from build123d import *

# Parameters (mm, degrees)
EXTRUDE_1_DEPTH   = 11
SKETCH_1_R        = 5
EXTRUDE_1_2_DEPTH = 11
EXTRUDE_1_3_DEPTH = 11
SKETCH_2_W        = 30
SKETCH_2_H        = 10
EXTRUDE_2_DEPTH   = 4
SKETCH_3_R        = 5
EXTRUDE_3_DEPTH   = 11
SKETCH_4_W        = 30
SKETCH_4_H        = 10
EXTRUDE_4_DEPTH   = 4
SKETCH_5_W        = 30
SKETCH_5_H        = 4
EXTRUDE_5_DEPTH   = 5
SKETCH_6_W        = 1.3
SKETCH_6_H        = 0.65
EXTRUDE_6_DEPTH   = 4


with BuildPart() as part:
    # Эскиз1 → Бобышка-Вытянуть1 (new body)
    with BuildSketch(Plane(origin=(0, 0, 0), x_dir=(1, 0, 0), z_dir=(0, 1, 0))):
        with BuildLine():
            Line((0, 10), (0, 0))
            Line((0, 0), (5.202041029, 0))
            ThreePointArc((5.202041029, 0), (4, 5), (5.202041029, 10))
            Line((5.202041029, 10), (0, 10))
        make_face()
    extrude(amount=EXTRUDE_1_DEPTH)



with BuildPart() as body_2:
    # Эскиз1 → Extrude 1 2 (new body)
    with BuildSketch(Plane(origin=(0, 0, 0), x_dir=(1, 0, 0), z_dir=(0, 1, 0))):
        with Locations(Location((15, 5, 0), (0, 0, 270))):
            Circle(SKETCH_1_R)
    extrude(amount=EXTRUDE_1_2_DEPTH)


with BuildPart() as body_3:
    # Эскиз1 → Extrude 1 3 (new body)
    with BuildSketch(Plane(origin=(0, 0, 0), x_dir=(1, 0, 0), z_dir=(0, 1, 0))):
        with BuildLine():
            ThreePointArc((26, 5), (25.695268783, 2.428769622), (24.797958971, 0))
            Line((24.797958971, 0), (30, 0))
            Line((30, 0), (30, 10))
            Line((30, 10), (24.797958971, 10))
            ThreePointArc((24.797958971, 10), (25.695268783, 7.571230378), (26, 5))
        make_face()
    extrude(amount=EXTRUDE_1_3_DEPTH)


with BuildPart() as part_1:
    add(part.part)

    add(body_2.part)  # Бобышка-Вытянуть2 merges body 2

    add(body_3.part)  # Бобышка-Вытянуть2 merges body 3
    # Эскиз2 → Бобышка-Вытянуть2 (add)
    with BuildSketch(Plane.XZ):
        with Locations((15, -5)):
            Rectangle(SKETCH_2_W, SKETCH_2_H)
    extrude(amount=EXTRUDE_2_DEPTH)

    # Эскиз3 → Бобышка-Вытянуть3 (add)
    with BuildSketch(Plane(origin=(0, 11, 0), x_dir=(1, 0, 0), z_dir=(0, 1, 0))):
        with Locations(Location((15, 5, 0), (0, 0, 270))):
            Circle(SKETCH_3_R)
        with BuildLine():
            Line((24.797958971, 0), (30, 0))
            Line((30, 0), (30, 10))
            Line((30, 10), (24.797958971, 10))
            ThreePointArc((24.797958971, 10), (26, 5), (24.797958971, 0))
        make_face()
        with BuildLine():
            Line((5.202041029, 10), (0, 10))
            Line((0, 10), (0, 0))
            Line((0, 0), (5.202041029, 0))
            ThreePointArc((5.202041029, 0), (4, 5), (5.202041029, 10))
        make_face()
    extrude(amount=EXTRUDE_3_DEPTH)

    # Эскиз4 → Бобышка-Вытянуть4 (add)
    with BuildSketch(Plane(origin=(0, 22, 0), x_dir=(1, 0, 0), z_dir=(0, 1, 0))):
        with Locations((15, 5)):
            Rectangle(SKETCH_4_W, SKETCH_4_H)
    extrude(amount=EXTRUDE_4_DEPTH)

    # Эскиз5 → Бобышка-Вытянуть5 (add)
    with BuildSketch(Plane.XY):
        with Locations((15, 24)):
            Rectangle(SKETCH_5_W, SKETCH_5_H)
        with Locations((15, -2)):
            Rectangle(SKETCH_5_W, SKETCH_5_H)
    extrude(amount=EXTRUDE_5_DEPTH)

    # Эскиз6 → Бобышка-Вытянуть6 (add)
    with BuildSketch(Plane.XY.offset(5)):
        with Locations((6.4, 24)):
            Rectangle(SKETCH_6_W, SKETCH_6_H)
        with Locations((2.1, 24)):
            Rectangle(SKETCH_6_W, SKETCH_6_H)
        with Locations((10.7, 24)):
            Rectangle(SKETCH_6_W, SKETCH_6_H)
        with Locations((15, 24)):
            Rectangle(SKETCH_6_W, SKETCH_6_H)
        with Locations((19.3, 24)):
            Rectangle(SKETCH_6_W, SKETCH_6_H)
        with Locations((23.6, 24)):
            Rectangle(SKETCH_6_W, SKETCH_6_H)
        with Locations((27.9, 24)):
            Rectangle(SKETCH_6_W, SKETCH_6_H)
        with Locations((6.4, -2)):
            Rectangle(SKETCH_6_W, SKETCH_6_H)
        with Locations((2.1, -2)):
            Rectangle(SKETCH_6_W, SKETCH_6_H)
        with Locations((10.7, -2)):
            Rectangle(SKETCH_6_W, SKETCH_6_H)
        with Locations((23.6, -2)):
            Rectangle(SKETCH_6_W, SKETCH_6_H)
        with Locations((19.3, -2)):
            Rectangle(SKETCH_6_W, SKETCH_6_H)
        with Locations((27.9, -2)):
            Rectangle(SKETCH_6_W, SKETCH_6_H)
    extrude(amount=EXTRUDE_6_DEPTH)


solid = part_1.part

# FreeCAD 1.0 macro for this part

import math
import FreeCAD as App
import Part
import Sketcher

doc = App.newDocument("Part")
body = doc.addObject("PartDesign::Body", "Body")

# Sketch on XZ plane
sketch1 = doc.addObject("Sketcher::SketchObject", "Sketch")
body.addObject(sketch1)
sketch1.AttachmentSupport = (doc.XZ_Plane, [""])
sketch1.MapMode = "FlatFace"
sketch1.addGeometry([
    Part.LineSegment(App.Vector(0, -10, 0), App.Vector(0, 0, 0)),
    Part.LineSegment(App.Vector(0, 0, 0), App.Vector(5.202041, 0, 0)),
    Part.ArcOfCircle(Part.Circle(App.Vector(15, -5, 0), App.Vector(0, 0, 1), 11), math.radians(152.964308), math.radians(207.035692)),
    Part.LineSegment(App.Vector(5.202041, -10, 0), App.Vector(0, -10, 0)),
], False)
sketch1.addConstraint([
    Sketcher.Constraint("Coincident", 0, 2, 1, 1),
    Sketcher.Constraint("Coincident", 1, 2, 2, 1),
    Sketcher.Constraint("Coincident", 2, 2, 3, 1),
    Sketcher.Constraint("Coincident", 3, 2, 0, 1),
    Sketcher.Constraint("Vertical", 0),
    Sketcher.Constraint("Horizontal", 1),
    Sketcher.Constraint("Horizontal", 3),
    Sketcher.Constraint("Coincident", 0, 2, -1, 1),
    Sketcher.Constraint("Vertical", 1, 2, 2, 2),
    Sketcher.Constraint("Radius", 2, 11.0),
    Sketcher.Constraint("DistanceY", 0, 1, 0, 2, 10.0),
    Sketcher.Constraint("DistanceX", -1, 1, 2, 3, 15.0),
])
pad1 = doc.addObject("PartDesign::Pad", "Pad")
body.addObject(pad1)
pad1.Profile = sketch1
pad1.Length = 11
pad1.Reversed = True
body2 = doc.addObject("PartDesign::Body", "Body001")

# Sketch on XZ plane
sketch2 = doc.addObject("Sketcher::SketchObject", "Sketch001")
body2.addObject(sketch2)
sketch2.AttachmentSupport = (doc.getObject("XZ_Plane001"), [""])
sketch2.MapMode = "FlatFace"
sketch2.addGeometry(Part.Circle(App.Vector(15, -5, 0), App.Vector(0, 0, 1), 5), False)
sketch2.addConstraint([
    Sketcher.Constraint("Diameter", 0, 10.0),
    Sketcher.Constraint("DistanceX", -1, 1, 0, 3, 15.0),
    Sketcher.Constraint("DistanceY", 0, 3, -1, 1, 5.0),
])
pad2 = doc.addObject("PartDesign::Pad", "Pad001")
body2.addObject(pad2)
pad2.Profile = sketch2
pad2.Length = 11
pad2.Reversed = True
body3 = doc.addObject("PartDesign::Body", "Body002")

# Sketch on XZ plane
sketch3 = doc.addObject("Sketcher::SketchObject", "Sketch002")
body3.addObject(sketch3)
sketch3.AttachmentSupport = (doc.getObject("XZ_Plane002"), [""])
sketch3.MapMode = "FlatFace"
sketch3.addGeometry([
    Part.ArcOfCircle(Part.Circle(App.Vector(15, -5, 0), App.Vector(0, 0, 1), 11), math.radians(0), math.radians(27.035692)),  # 0
    Part.LineSegment(App.Vector(24.797959, 0, 0), App.Vector(30, 0, 0)),  # 1
    Part.LineSegment(App.Vector(30, 0, 0), App.Vector(30, -10, 0)),  # 2
    Part.LineSegment(App.Vector(30, -10, 0), App.Vector(24.797959, -10, 0)),  # 3
    Part.ArcOfCircle(Part.Circle(App.Vector(15, -5, 0), App.Vector(0, 0, 1), 11), math.radians(-27.035692), math.radians(0)),  # 4
], False)
sketch3.addConstraint([
    Sketcher.Constraint("Coincident", 0, 2, 1, 1),
    Sketcher.Constraint("Coincident", 1, 2, 2, 1),
    Sketcher.Constraint("Coincident", 2, 2, 3, 1),
    Sketcher.Constraint("Coincident", 3, 2, 4, 1),
    Sketcher.Constraint("Tangent", 4, 2, 0, 1),
    Sketcher.Constraint("Horizontal", 1),
    Sketcher.Constraint("Vertical", 2),
    Sketcher.Constraint("Horizontal", 3),
    Sketcher.Constraint("Equal", 0, 4),
    Sketcher.Constraint("PointOnObject", 0, 2, -1),
    Sketcher.Constraint("Horizontal", 0, 3, 4, 2),
    Sketcher.Constraint("Vertical", 0, 2, 3, 2),
    Sketcher.Constraint("Radius", 0, 11.0),
    Sketcher.Constraint("DistanceY", 2, 2, 2, 1, 10.0),
    Sketcher.Constraint("DistanceX", -1, 1, 0, 3, 15.0),
    Sketcher.Constraint("DistanceX", -1, 1, 1, 2, 30.0),
])
pad3 = doc.addObject("PartDesign::Pad", "Pad002")
body3.addObject(pad3)
pad3.Profile = sketch3
pad3.Length = 11
pad3.Reversed = True
body.AllowCompound = True
doc.recompute()

boolean = doc.addObject("PartDesign::Boolean", "Boolean")
body.addObject(boolean)
boolean.Type = "Fuse"
boolean.addObjects([body2])
doc.recompute()

boolean2 = doc.addObject("PartDesign::Boolean", "Boolean001")
body.addObject(boolean2)
boolean2.Type = "Fuse"
boolean2.addObjects([body3])

# Sketch on XZ plane
sketch4 = doc.addObject("Sketcher::SketchObject", "Sketch003")
body.addObject(sketch4)
sketch4.AttachmentSupport = (doc.XZ_Plane, [""])
sketch4.MapMode = "FlatFace"
sketch4.addGeometry([
    Part.LineSegment(App.Vector(0, 0, 0), App.Vector(0, -10, 0)),
    Part.LineSegment(App.Vector(0, -10, 0), App.Vector(30, -10, 0)),
    Part.LineSegment(App.Vector(30, -10, 0), App.Vector(30, 0, 0)),
    Part.LineSegment(App.Vector(30, 0, 0), App.Vector(0, 0, 0)),
], False)
sketch4.addConstraint([
    Sketcher.Constraint("Coincident", 0, 2, 1, 1),
    Sketcher.Constraint("Coincident", 1, 2, 2, 1),
    Sketcher.Constraint("Coincident", 2, 2, 3, 1),
    Sketcher.Constraint("Coincident", 3, 2, 0, 1),
    Sketcher.Constraint("Vertical", 0),
    Sketcher.Constraint("Horizontal", 1),
    Sketcher.Constraint("Vertical", 2),
    Sketcher.Constraint("Horizontal", 3),
    Sketcher.Constraint("Coincident", 3, 2, -1, 1),
    Sketcher.Constraint("DistanceX", 1, 1, 1, 2, 30.0),
    Sketcher.Constraint("DistanceY", 0, 2, 0, 1, 10.0),
])
pad4 = doc.addObject("PartDesign::Pad", "Pad003")
body.addObject(pad4)
pad4.Profile = sketch4
pad4.Length = 4

# Sketch on XZ plane
sketch5 = doc.addObject("Sketcher::SketchObject", "Sketch004")
body.addObject(sketch5)
sketch5.AttachmentSupport = (doc.XZ_Plane, [""])
sketch5.MapMode = "FlatFace"
sketch5.AttachmentOffset = App.Placement(App.Vector(0, 0, -11), App.Rotation())
sketch5.addGeometry([
    Part.Circle(App.Vector(15, -5, 0), App.Vector(0, 0, 1), 5),  # 0
    Part.LineSegment(App.Vector(24.797959, 0, 0), App.Vector(30, 0, 0)),  # 1
    Part.LineSegment(App.Vector(30, 0, 0), App.Vector(30, -10, 0)),  # 2
    Part.LineSegment(App.Vector(30, -10, 0), App.Vector(24.797959, -10, 0)),  # 3
    Part.ArcOfCircle(Part.Circle(App.Vector(15, -5, 0), App.Vector(0, 0, 1), 11), math.radians(-27.035692), math.radians(27.035692)),  # 4
    Part.LineSegment(App.Vector(5.202041, -10, 0), App.Vector(0, -10, 0)),  # 5
    Part.LineSegment(App.Vector(0, -10, 0), App.Vector(0, 0, 0)),  # 6
    Part.LineSegment(App.Vector(0, 0, 0), App.Vector(5.202041, 0, 0)),  # 7
    Part.ArcOfCircle(Part.Circle(App.Vector(15, -5, 0), App.Vector(0, 0, 1), 11), math.radians(152.964308), math.radians(207.035692)),  # 8
], False)
sketch5.addConstraint([
    Sketcher.Constraint("Coincident", 1, 2, 2, 1),
    Sketcher.Constraint("Coincident", 2, 2, 3, 1),
    Sketcher.Constraint("Coincident", 3, 2, 4, 1),
    Sketcher.Constraint("Coincident", 4, 2, 1, 1),
    Sketcher.Constraint("Coincident", 5, 2, 6, 1),
    Sketcher.Constraint("Coincident", 6, 2, 7, 1),
    Sketcher.Constraint("Coincident", 7, 2, 8, 1),
    Sketcher.Constraint("Coincident", 8, 2, 5, 1),
    Sketcher.Constraint("Horizontal", 1),
    Sketcher.Constraint("Vertical", 2),
    Sketcher.Constraint("Horizontal", 3),
    Sketcher.Constraint("Horizontal", 5),
    Sketcher.Constraint("Vertical", 6),
    Sketcher.Constraint("Horizontal", 7),
    Sketcher.Constraint("Coincident", 6, 2, -1, 1),
    Sketcher.Constraint("Coincident", 4, 3, 0, 3),
    Sketcher.Constraint("Coincident", 8, 3, 0, 3),
    Sketcher.Constraint("Equal", 4, 8),
    Sketcher.Constraint("PointOnObject", 1, 2, -1),
    Sketcher.Constraint("Horizontal", 3, 2, 5, 2),
    Sketcher.Constraint("Vertical", 3, 2, 4, 2),
    Sketcher.Constraint("Equal", 3, 5),
    Sketcher.Constraint("Diameter", 0, 10.0),
    Sketcher.Constraint("Radius", 4, 11.0),
    Sketcher.Constraint("DistanceY", 2, 2, 2, 1, 10.0),
    Sketcher.Constraint("DistanceX", -1, 1, 0, 3, 15.0),
])
pad5 = doc.addObject("PartDesign::Pad", "Pad004")
body.addObject(pad5)
pad5.Profile = sketch5
pad5.Length = 11
pad5.Reversed = True

# Sketch on XZ plane
sketch6 = doc.addObject("Sketcher::SketchObject", "Sketch005")
body.addObject(sketch6)
sketch6.AttachmentSupport = (doc.XZ_Plane, [""])
sketch6.MapMode = "FlatFace"
sketch6.AttachmentOffset = App.Placement(App.Vector(0, 0, -22), App.Rotation())
sketch6.addGeometry([
    Part.LineSegment(App.Vector(0, -10, 0), App.Vector(0, 0, 0)),
    Part.LineSegment(App.Vector(0, 0, 0), App.Vector(30, 0, 0)),
    Part.LineSegment(App.Vector(30, 0, 0), App.Vector(30, -10, 0)),
    Part.LineSegment(App.Vector(30, -10, 0), App.Vector(0, -10, 0)),
], False)
sketch6.addConstraint([
    Sketcher.Constraint("Coincident", 0, 2, 1, 1),
    Sketcher.Constraint("Coincident", 1, 2, 2, 1),
    Sketcher.Constraint("Coincident", 2, 2, 3, 1),
    Sketcher.Constraint("Coincident", 3, 2, 0, 1),
    Sketcher.Constraint("Vertical", 0),
    Sketcher.Constraint("Horizontal", 1),
    Sketcher.Constraint("Vertical", 2),
    Sketcher.Constraint("Horizontal", 3),
    Sketcher.Constraint("Coincident", 0, 2, -1, 1),
    Sketcher.Constraint("DistanceX", 1, 1, 1, 2, 30.0),
    Sketcher.Constraint("DistanceY", 0, 1, 0, 2, 10.0),
])
pad6 = doc.addObject("PartDesign::Pad", "Pad005")
body.addObject(pad6)
pad6.Profile = sketch6
pad6.Length = 4
pad6.Reversed = True

# Sketch on XY plane
sketch7 = doc.addObject("Sketcher::SketchObject", "Sketch006")
body.addObject(sketch7)
sketch7.AttachmentSupport = (doc.XY_Plane, [""])
sketch7.MapMode = "FlatFace"
sketch7.addGeometry([
    Part.LineSegment(App.Vector(0, 26, 0), App.Vector(0, 22, 0)),  # 0
    Part.LineSegment(App.Vector(0, 22, 0), App.Vector(30, 22, 0)),  # 1
    Part.LineSegment(App.Vector(30, 22, 0), App.Vector(30, 26, 0)),  # 2
    Part.LineSegment(App.Vector(30, 26, 0), App.Vector(0, 26, 0)),  # 3
    Part.LineSegment(App.Vector(0, 0, 0), App.Vector(0, -4, 0)),  # 4
    Part.LineSegment(App.Vector(0, -4, 0), App.Vector(30, -4, 0)),  # 5
    Part.LineSegment(App.Vector(30, -4, 0), App.Vector(30, 0, 0)),  # 6
    Part.LineSegment(App.Vector(30, 0, 0), App.Vector(0, 0, 0)),  # 7
], False)
sketch7.addConstraint([
    Sketcher.Constraint("Coincident", 0, 2, 1, 1),
    Sketcher.Constraint("Coincident", 1, 2, 2, 1),
    Sketcher.Constraint("Coincident", 2, 2, 3, 1),
    Sketcher.Constraint("Coincident", 3, 2, 0, 1),
    Sketcher.Constraint("Coincident", 4, 2, 5, 1),
    Sketcher.Constraint("Coincident", 5, 2, 6, 1),
    Sketcher.Constraint("Coincident", 6, 2, 7, 1),
    Sketcher.Constraint("Coincident", 7, 2, 4, 1),
    Sketcher.Constraint("Vertical", 0),
    Sketcher.Constraint("Horizontal", 1),
    Sketcher.Constraint("Vertical", 2),
    Sketcher.Constraint("Horizontal", 3),
    Sketcher.Constraint("Vertical", 4),
    Sketcher.Constraint("Horizontal", 5),
    Sketcher.Constraint("Vertical", 6),
    Sketcher.Constraint("Horizontal", 7),
    Sketcher.Constraint("Coincident", 7, 2, -1, 1),
    Sketcher.Constraint("PointOnObject", 0, 2, -2),
    Sketcher.Constraint("Vertical", 2, 2, 5, 2),
    Sketcher.Constraint("Equal", 2, 4),
    Sketcher.Constraint("DistanceX", 1, 1, 1, 2, 30.0),
    Sketcher.Constraint("DistanceY", 0, 2, 0, 1, 4.0),
    Sketcher.Constraint("DistanceY", -1, 1, 0, 2, 22.0),
])
pad7 = doc.addObject("PartDesign::Pad", "Pad006")
body.addObject(pad7)
pad7.Profile = sketch7
pad7.Length = 5

# Sketch on XY plane
sketch8 = doc.addObject("Sketcher::SketchObject", "Sketch007")
body.addObject(sketch8)
sketch8.AttachmentSupport = (doc.XY_Plane, [""])
sketch8.MapMode = "FlatFace"
sketch8.AttachmentOffset = App.Placement(App.Vector(0, 0, 5), App.Rotation())
sketch8.addGeometry([
    Part.LineSegment(App.Vector(5.75, 24.325, 0), App.Vector(5.75, 23.675, 0)),  # 0
    Part.LineSegment(App.Vector(5.75, 23.675, 0), App.Vector(7.05, 23.675, 0)),  # 1
    Part.LineSegment(App.Vector(7.05, 23.675, 0), App.Vector(7.05, 24.325, 0)),  # 2
    Part.LineSegment(App.Vector(7.05, 24.325, 0), App.Vector(5.75, 24.325, 0)),  # 3
    Part.LineSegment(App.Vector(1.45, 24.325, 0), App.Vector(1.45, 23.675, 0)),  # 4
    Part.LineSegment(App.Vector(1.45, 23.675, 0), App.Vector(2.75, 23.675, 0)),  # 5
    Part.LineSegment(App.Vector(2.75, 23.675, 0), App.Vector(2.75, 24.325, 0)),  # 6
    Part.LineSegment(App.Vector(2.75, 24.325, 0), App.Vector(1.45, 24.325, 0)),  # 7
    Part.LineSegment(App.Vector(10.05, 24.325, 0), App.Vector(10.05, 23.675, 0)),  # 8
    Part.LineSegment(App.Vector(10.05, 23.675, 0), App.Vector(11.35, 23.675, 0)),  # 9
    Part.LineSegment(App.Vector(11.35, 23.675, 0), App.Vector(11.35, 24.325, 0)),  # 10
    Part.LineSegment(App.Vector(11.35, 24.325, 0), App.Vector(10.05, 24.325, 0)),  # 11
    Part.LineSegment(App.Vector(14.35, 24.325, 0), App.Vector(14.35, 23.675, 0)),  # 12
    Part.LineSegment(App.Vector(14.35, 23.675, 0), App.Vector(15.65, 23.675, 0)),  # 13
    Part.LineSegment(App.Vector(15.65, 23.675, 0), App.Vector(15.65, 24.325, 0)),  # 14
    Part.LineSegment(App.Vector(15.65, 24.325, 0), App.Vector(14.35, 24.325, 0)),  # 15
    Part.LineSegment(App.Vector(18.65, 24.325, 0), App.Vector(18.65, 23.675, 0)),  # 16
    Part.LineSegment(App.Vector(18.65, 23.675, 0), App.Vector(19.95, 23.675, 0)),  # 17
    Part.LineSegment(App.Vector(19.95, 23.675, 0), App.Vector(19.95, 24.325, 0)),  # 18
    Part.LineSegment(App.Vector(19.95, 24.325, 0), App.Vector(18.65, 24.325, 0)),  # 19
    Part.LineSegment(App.Vector(22.95, 24.325, 0), App.Vector(22.95, 23.675, 0)),  # 20
    Part.LineSegment(App.Vector(22.95, 23.675, 0), App.Vector(24.25, 23.675, 0)),  # 21
    Part.LineSegment(App.Vector(24.25, 23.675, 0), App.Vector(24.25, 24.325, 0)),  # 22
    Part.LineSegment(App.Vector(24.25, 24.325, 0), App.Vector(22.95, 24.325, 0)),  # 23
    Part.LineSegment(App.Vector(27.25, 24.325, 0), App.Vector(27.25, 23.675, 0)),  # 24
    Part.LineSegment(App.Vector(27.25, 23.675, 0), App.Vector(28.55, 23.675, 0)),  # 25
    Part.LineSegment(App.Vector(28.55, 23.675, 0), App.Vector(28.55, 24.325, 0)),  # 26
    Part.LineSegment(App.Vector(28.55, 24.325, 0), App.Vector(27.25, 24.325, 0)),  # 27
    Part.LineSegment(App.Vector(5.75, -1.675, 0), App.Vector(5.75, -2.325, 0)),  # 28
    Part.LineSegment(App.Vector(5.75, -2.325, 0), App.Vector(7.05, -2.325, 0)),  # 29
    Part.LineSegment(App.Vector(7.05, -2.325, 0), App.Vector(7.05, -1.675, 0)),  # 30
    Part.LineSegment(App.Vector(7.05, -1.675, 0), App.Vector(5.75, -1.675, 0)),  # 31
    Part.LineSegment(App.Vector(1.45, -1.675, 0), App.Vector(1.45, -2.325, 0)),  # 32
    Part.LineSegment(App.Vector(1.45, -2.325, 0), App.Vector(2.75, -2.325, 0)),  # 33
    Part.LineSegment(App.Vector(2.75, -2.325, 0), App.Vector(2.75, -1.675, 0)),  # 34
    Part.LineSegment(App.Vector(2.75, -1.675, 0), App.Vector(1.45, -1.675, 0)),  # 35
    Part.LineSegment(App.Vector(10.05, -1.675, 0), App.Vector(10.05, -2.325, 0)),  # 36
    Part.LineSegment(App.Vector(10.05, -2.325, 0), App.Vector(11.35, -2.325, 0)),  # 37
    Part.LineSegment(App.Vector(11.35, -2.325, 0), App.Vector(11.35, -1.675, 0)),  # 38
    Part.LineSegment(App.Vector(11.35, -1.675, 0), App.Vector(10.05, -1.675, 0)),  # 39
    Part.LineSegment(App.Vector(22.95, -1.675, 0), App.Vector(22.95, -2.325, 0)),  # 40
    Part.LineSegment(App.Vector(22.95, -2.325, 0), App.Vector(24.25, -2.325, 0)),  # 41
    Part.LineSegment(App.Vector(24.25, -2.325, 0), App.Vector(24.25, -1.675, 0)),  # 42
    Part.LineSegment(App.Vector(24.25, -1.675, 0), App.Vector(22.95, -1.675, 0)),  # 43
    Part.LineSegment(App.Vector(18.65, -1.675, 0), App.Vector(18.65, -2.325, 0)),  # 44
    Part.LineSegment(App.Vector(18.65, -2.325, 0), App.Vector(19.95, -2.325, 0)),  # 45
    Part.LineSegment(App.Vector(19.95, -2.325, 0), App.Vector(19.95, -1.675, 0)),  # 46
    Part.LineSegment(App.Vector(19.95, -1.675, 0), App.Vector(18.65, -1.675, 0)),  # 47
    Part.LineSegment(App.Vector(27.25, -1.675, 0), App.Vector(27.25, -2.325, 0)),  # 48
    Part.LineSegment(App.Vector(27.25, -2.325, 0), App.Vector(28.55, -2.325, 0)),  # 49
    Part.LineSegment(App.Vector(28.55, -2.325, 0), App.Vector(28.55, -1.675, 0)),  # 50
    Part.LineSegment(App.Vector(28.55, -1.675, 0), App.Vector(27.25, -1.675, 0)),  # 51
], False)
sketch8.addConstraint([
    Sketcher.Constraint("Coincident", 0, 2, 1, 1),
    Sketcher.Constraint("Coincident", 1, 2, 2, 1),
    Sketcher.Constraint("Coincident", 2, 2, 3, 1),
    Sketcher.Constraint("Coincident", 3, 2, 0, 1),
    Sketcher.Constraint("Coincident", 4, 2, 5, 1),
    Sketcher.Constraint("Coincident", 5, 2, 6, 1),
    Sketcher.Constraint("Coincident", 6, 2, 7, 1),
    Sketcher.Constraint("Coincident", 7, 2, 4, 1),
    Sketcher.Constraint("Coincident", 8, 2, 9, 1),
    Sketcher.Constraint("Coincident", 9, 2, 10, 1),
    Sketcher.Constraint("Coincident", 10, 2, 11, 1),
    Sketcher.Constraint("Coincident", 11, 2, 8, 1),
    Sketcher.Constraint("Coincident", 12, 2, 13, 1),
    Sketcher.Constraint("Coincident", 13, 2, 14, 1),
    Sketcher.Constraint("Coincident", 14, 2, 15, 1),
    Sketcher.Constraint("Coincident", 15, 2, 12, 1),
    Sketcher.Constraint("Coincident", 16, 2, 17, 1),
    Sketcher.Constraint("Coincident", 17, 2, 18, 1),
    Sketcher.Constraint("Coincident", 18, 2, 19, 1),
    Sketcher.Constraint("Coincident", 19, 2, 16, 1),
    Sketcher.Constraint("Coincident", 20, 2, 21, 1),
    Sketcher.Constraint("Coincident", 21, 2, 22, 1),
    Sketcher.Constraint("Coincident", 22, 2, 23, 1),
    Sketcher.Constraint("Coincident", 23, 2, 20, 1),
    Sketcher.Constraint("Coincident", 24, 2, 25, 1),
    Sketcher.Constraint("Coincident", 25, 2, 26, 1),
    Sketcher.Constraint("Coincident", 26, 2, 27, 1),
    Sketcher.Constraint("Coincident", 27, 2, 24, 1),
    Sketcher.Constraint("Coincident", 28, 2, 29, 1),
    Sketcher.Constraint("Coincident", 29, 2, 30, 1),
    Sketcher.Constraint("Coincident", 30, 2, 31, 1),
    Sketcher.Constraint("Coincident", 31, 2, 28, 1),
    Sketcher.Constraint("Coincident", 32, 2, 33, 1),
    Sketcher.Constraint("Coincident", 33, 2, 34, 1),
    Sketcher.Constraint("Coincident", 34, 2, 35, 1),
    Sketcher.Constraint("Coincident", 35, 2, 32, 1),
    Sketcher.Constraint("Coincident", 36, 2, 37, 1),
    Sketcher.Constraint("Coincident", 37, 2, 38, 1),
    Sketcher.Constraint("Coincident", 38, 2, 39, 1),
    Sketcher.Constraint("Coincident", 39, 2, 36, 1),
    Sketcher.Constraint("Coincident", 40, 2, 41, 1),
    Sketcher.Constraint("Coincident", 41, 2, 42, 1),
    Sketcher.Constraint("Coincident", 42, 2, 43, 1),
    Sketcher.Constraint("Coincident", 43, 2, 40, 1),
    Sketcher.Constraint("Coincident", 44, 2, 45, 1),
    Sketcher.Constraint("Coincident", 45, 2, 46, 1),
    Sketcher.Constraint("Coincident", 46, 2, 47, 1),
    Sketcher.Constraint("Coincident", 47, 2, 44, 1),
    Sketcher.Constraint("Coincident", 48, 2, 49, 1),
    Sketcher.Constraint("Coincident", 49, 2, 50, 1),
    Sketcher.Constraint("Coincident", 50, 2, 51, 1),
    Sketcher.Constraint("Coincident", 51, 2, 48, 1),
    Sketcher.Constraint("Vertical", 0),
    Sketcher.Constraint("Horizontal", 1),
    Sketcher.Constraint("Vertical", 2),
    Sketcher.Constraint("Horizontal", 3),
    Sketcher.Constraint("Vertical", 4),
    Sketcher.Constraint("Horizontal", 5),
    Sketcher.Constraint("Vertical", 6),
    Sketcher.Constraint("Horizontal", 7),
    Sketcher.Constraint("Vertical", 8),
    Sketcher.Constraint("Horizontal", 9),
    Sketcher.Constraint("Vertical", 10),
    Sketcher.Constraint("Horizontal", 11),
    Sketcher.Constraint("Vertical", 12),
    Sketcher.Constraint("Horizontal", 13),
    Sketcher.Constraint("Vertical", 14),
    Sketcher.Constraint("Horizontal", 15),
    Sketcher.Constraint("Vertical", 16),
    Sketcher.Constraint("Horizontal", 17),
    Sketcher.Constraint("Vertical", 18),
    Sketcher.Constraint("Horizontal", 19),
    Sketcher.Constraint("Vertical", 20),
    Sketcher.Constraint("Horizontal", 21),
    Sketcher.Constraint("Vertical", 22),
    Sketcher.Constraint("Horizontal", 23),
    Sketcher.Constraint("Vertical", 24),
    Sketcher.Constraint("Horizontal", 25),
    Sketcher.Constraint("Vertical", 26),
    Sketcher.Constraint("Horizontal", 27),
    Sketcher.Constraint("Vertical", 28),
    Sketcher.Constraint("Horizontal", 29),
    Sketcher.Constraint("Vertical", 30),
    Sketcher.Constraint("Horizontal", 31),
    Sketcher.Constraint("Vertical", 32),
    Sketcher.Constraint("Horizontal", 33),
    Sketcher.Constraint("Vertical", 34),
    Sketcher.Constraint("Horizontal", 35),
    Sketcher.Constraint("Vertical", 36),
    Sketcher.Constraint("Horizontal", 37),
    Sketcher.Constraint("Vertical", 38),
    Sketcher.Constraint("Horizontal", 39),
    Sketcher.Constraint("Vertical", 40),
    Sketcher.Constraint("Horizontal", 41),
    Sketcher.Constraint("Vertical", 42),
    Sketcher.Constraint("Horizontal", 43),
    Sketcher.Constraint("Vertical", 44),
    Sketcher.Constraint("Horizontal", 45),
    Sketcher.Constraint("Vertical", 46),
    Sketcher.Constraint("Horizontal", 47),
    Sketcher.Constraint("Vertical", 48),
    Sketcher.Constraint("Horizontal", 49),
    Sketcher.Constraint("Vertical", 50),
    Sketcher.Constraint("Horizontal", 51),
    Sketcher.Constraint("Horizontal", 1, 2, 4, 2),
    Sketcher.Constraint("Horizontal", 3, 2, 6, 2),
    Sketcher.Constraint("Horizontal", 5, 2, 8, 2),
    Sketcher.Constraint("Horizontal", 7, 2, 10, 2),
    Sketcher.Constraint("Horizontal", 9, 2, 12, 2),
    Sketcher.Constraint("Horizontal", 11, 2, 14, 2),
    Sketcher.Constraint("Horizontal", 13, 2, 16, 2),
    Sketcher.Constraint("Horizontal", 15, 2, 18, 2),
    Sketcher.Constraint("Horizontal", 17, 2, 20, 2),
    Sketcher.Constraint("Horizontal", 19, 2, 22, 2),
    Sketcher.Constraint("Horizontal", 21, 2, 24, 2),
    Sketcher.Constraint("Horizontal", 23, 2, 26, 2),
    Sketcher.Constraint("Horizontal", 29, 2, 32, 2),
    Sketcher.Constraint("Horizontal", 31, 2, 34, 2),
    Sketcher.Constraint("Horizontal", 33, 2, 36, 2),
    Sketcher.Constraint("Horizontal", 35, 2, 38, 2),
    Sketcher.Constraint("Horizontal", 37, 2, 40, 2),
    Sketcher.Constraint("Horizontal", 39, 2, 42, 2),
    Sketcher.Constraint("Horizontal", 41, 2, 44, 2),
    Sketcher.Constraint("Horizontal", 43, 2, 46, 2),
    Sketcher.Constraint("Horizontal", 45, 2, 48, 2),
    Sketcher.Constraint("Horizontal", 47, 2, 50, 2),
    Sketcher.Constraint("Vertical", 3, 2, 28, 2),
    Sketcher.Constraint("Vertical", 2, 2, 29, 2),
    Sketcher.Constraint("Vertical", 7, 2, 32, 2),
    Sketcher.Constraint("Vertical", 6, 2, 33, 2),
    Sketcher.Constraint("Vertical", 11, 2, 36, 2),
    Sketcher.Constraint("Vertical", 10, 2, 37, 2),
    Sketcher.Constraint("Vertical", 23, 2, 40, 2),
    Sketcher.Constraint("Vertical", 22, 2, 41, 2),
    Sketcher.Constraint("Vertical", 19, 2, 44, 2),
    Sketcher.Constraint("Vertical", 18, 2, 45, 2),
    Sketcher.Constraint("Vertical", 27, 2, 48, 2),
    Sketcher.Constraint("Vertical", 26, 2, 49, 2),
    Sketcher.Constraint("Equal", 3, 5),
    Sketcher.Constraint("Equal", 7, 9),
    Sketcher.Constraint("Equal", 11, 13),
    Sketcher.Constraint("Equal", 15, 17),
    Sketcher.Constraint("Equal", 19, 21),
    Sketcher.Constraint("Equal", 23, 25),
    Sketcher.Constraint("Equal", 26, 28),
    Sketcher.Constraint("DistanceX", 1, 1, 1, 2, 1.3),
    Sketcher.Constraint("DistanceX", 5, 2, 0, 2, 3.0),
    Sketcher.Constraint("DistanceX", 1, 2, 8, 2, 3.0),
    Sketcher.Constraint("DistanceX", 9, 2, 12, 2, 3.0),
    Sketcher.Constraint("DistanceX", 13, 2, 16, 2, 3.0),
    Sketcher.Constraint("DistanceX", 17, 2, 20, 2, 3.0),
    Sketcher.Constraint("DistanceX", 21, 2, 24, 2, 3.0),
    Sketcher.Constraint("DistanceY", 28, 2, 0, 2, 26.0),
    Sketcher.Constraint("DistanceY", 0, 2, 0, 1, 0.65),
    Sketcher.Constraint("DistanceX", -1, 1, 0, 2, 5.75),
    Sketcher.Constraint("DistanceY", -1, 1, 0, 2, 23.675),
])
pad8 = doc.addObject("PartDesign::Pad", "Pad007")
body.addObject(pad8)
pad8.Profile = sketch8
pad8.Length = 4

doc.recompute()
